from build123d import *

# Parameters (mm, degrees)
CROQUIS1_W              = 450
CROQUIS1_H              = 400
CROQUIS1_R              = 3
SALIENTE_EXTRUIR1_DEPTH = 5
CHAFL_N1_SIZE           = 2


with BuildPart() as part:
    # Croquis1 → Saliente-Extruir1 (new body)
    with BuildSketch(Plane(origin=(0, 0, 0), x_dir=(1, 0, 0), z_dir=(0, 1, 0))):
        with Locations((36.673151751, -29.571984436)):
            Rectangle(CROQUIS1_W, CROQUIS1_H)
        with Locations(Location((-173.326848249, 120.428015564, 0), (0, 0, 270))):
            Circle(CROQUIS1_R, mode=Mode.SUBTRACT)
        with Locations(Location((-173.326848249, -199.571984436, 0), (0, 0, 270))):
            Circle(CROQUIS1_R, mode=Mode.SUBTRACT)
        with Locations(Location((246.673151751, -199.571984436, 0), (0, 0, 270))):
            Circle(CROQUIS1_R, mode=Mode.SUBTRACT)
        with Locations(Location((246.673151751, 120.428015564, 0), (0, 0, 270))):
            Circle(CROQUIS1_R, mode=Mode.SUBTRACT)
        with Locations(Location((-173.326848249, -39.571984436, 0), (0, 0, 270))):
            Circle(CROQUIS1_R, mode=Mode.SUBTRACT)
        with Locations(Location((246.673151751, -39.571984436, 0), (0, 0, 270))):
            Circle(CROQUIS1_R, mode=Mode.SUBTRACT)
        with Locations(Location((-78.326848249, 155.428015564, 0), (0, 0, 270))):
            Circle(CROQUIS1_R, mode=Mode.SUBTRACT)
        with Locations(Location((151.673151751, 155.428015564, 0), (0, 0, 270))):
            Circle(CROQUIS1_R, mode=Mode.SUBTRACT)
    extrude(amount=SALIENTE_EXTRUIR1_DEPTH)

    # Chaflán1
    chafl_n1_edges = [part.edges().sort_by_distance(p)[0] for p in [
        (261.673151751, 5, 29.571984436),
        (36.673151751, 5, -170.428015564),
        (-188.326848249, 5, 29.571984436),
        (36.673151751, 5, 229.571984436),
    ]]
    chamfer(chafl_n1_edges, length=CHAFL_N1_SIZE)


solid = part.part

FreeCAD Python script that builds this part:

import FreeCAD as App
import Part
import Sketcher

V = App.Vector
Q = App.Units.Quantity


def edges_at(feature, points):
    """Names of the edges that pass closest to the given points."""
    edges = feature.Shape.Edges
    near = lambda p: min(range(len(edges)), key=lambda i: edges[i].distToShape(Part.Vertex(*p))[0])
    return sorted({f"Edge{near(p) + 1}" for p in points})

doc = App.newDocument("Part")
body = doc.addObject("PartDesign::Body", "Body")

# Sketch on XZ plane
sketch1 = body.newObject("Sketcher::SketchObject", "Sketch")
sketch1.AttachmentSupport = (doc.getObject("XZ_Plane"), [""])
sketch1.MapMode = "FlatFace"
sketch1.addGeometry([
    Part.LineSegment(V(-188.3, -170.4, 0), V(-188.3, 229.6, 0)),  # 0
    Part.LineSegment(V(-188.3, 229.6, 0), V(261.7, 229.6, 0)),  # 1
    Part.LineSegment(V(261.7, 229.6, 0), V(261.7, -170.4, 0)),  # 2
    Part.LineSegment(V(261.7, -170.4, 0), V(-188.3, -170.4, 0)),  # 3
    Part.Circle(V(-173.3, 199.6, 0), V(0, 0, 1), 3),  # 4
    Part.Circle(V(-173.3, 39.6, 0), V(0, 0, 1), 3),  # 5
    Part.Circle(V(246.7, 199.6, 0), V(0, 0, 1), 3),  # 6
    Part.Circle(V(246.7, 39.6, 0), V(0, 0, 1), 3),  # 7
    Part.Circle(V(-173.3, -120.4, 0), V(0, 0, 1), 3),  # 8
    Part.Circle(V(-78.3, -155.4, 0), V(0, 0, 1), 3),  # 9
    Part.Circle(V(151.7, -155.4, 0), V(0, 0, 1), 3),  # 10
    Part.Circle(V(246.7, -120.4, 0), V(0, 0, 1), 3),  # 11
], False)
sketch1.addConstraint([
    Sketcher.Constraint("Coincident", 0, 2, 1, 1),
    Sketcher.Constraint("Coincident", 1, 2, 2, 1),
    Sketcher.Constraint("Coincident", 2, 2, 3, 1),
    Sketcher.Constraint("Coincident", 3, 2, 0, 1),
    Sketcher.Constraint("Vertical", 0),
    Sketcher.Constraint("Horizontal", 1),
    Sketcher.Constraint("Vertical", 2),
    Sketcher.Constraint("Horizontal", 3),
    Sketcher.Constraint("Equal", 4, 5),
    Sketcher.Constraint("Equal", 5, 6),
    Sketcher.Constraint("Equal", 6, 7),
    Sketcher.Constraint("Equal", 7, 8),
    Sketcher.Constraint("Equal", 8, 9),
    Sketcher.Constraint("Equal", 9, 10),
    Sketcher.Constraint("Equal", 10, 11),
    Sketcher.Constraint("Horizontal", 4, 3, 6, 3),
    Sketcher.Constraint("Horizontal", 5, 3, 7, 3),
    Sketcher.Constraint("Horizontal", 9, 3, 10, 3),
    Sketcher.Constraint("Horizontal", 8, 3, 11, 3),
    Sketcher.Constraint("Vertical", 4, 3, 5, 3),
    Sketcher.Constraint("Vertical", 6, 3, 7, 3),
    Sketcher.Constraint("Vertical", 5, 3, 8, 3),
    Sketcher.Constraint("Vertical", 7, 3, 11, 3),
    Sketcher.Constraint("Diameter", 4, Q("6 mm")),
    Sketcher.Constraint("DistanceX", 1, 1, 1, 2, Q("450 mm")),
    Sketcher.Constraint("DistanceY", 0, 1, 0, 2, Q("400 mm")),
    Sketcher.Constraint("DistanceY", 5, 3, 4, 3, Q("160 mm")),
    Sketcher.Constraint("DistanceX", 4, 3, 6, 3, Q("420 mm")),
    Sketcher.Constraint("DistanceY", 8, 3, 5, 3, Q("160 mm")),
    Sketcher.Constraint("DistanceX", 8, 3, 9, 3, Q("95 mm")),
    Sketcher.Constraint("DistanceY", 9, 3, 8, 3, Q("35 mm")),
    Sketcher.Constraint("DistanceX", 10, 3, 7, 3, Q("95 mm")),
    Sketcher.Constraint("DistanceX", 0, 2, 4, 3, Q("15 mm")),
    Sketcher.Constraint("DistanceY", 4, 3, 0, 2, Q("30 mm")),
    Sketcher.Constraint("DistanceX", 4, 3, -1, 1, Q("173.326848 mm")),
    Sketcher.Constraint("DistanceY", -1, 1, 4, 3, Q("199.571984 mm")),
])
pad1 = body.newObject("PartDesign::Pad", "Pad")
pad1.Profile = sketch1
pad1.Length = 5
pad1.Reversed = True
doc.recompute()

chamfer = body.newObject("PartDesign::Chamfer", "Chamfer")
chamfer.Base = (pad1, edges_at(pad1, [
    (261.673, 5, 29.572),
    (36.673, 5, -170.428),
    (-188.327, 5, 29.572),
    (36.673, 5, 229.572),
]))
chamfer.Size = 2

doc.recompute()
